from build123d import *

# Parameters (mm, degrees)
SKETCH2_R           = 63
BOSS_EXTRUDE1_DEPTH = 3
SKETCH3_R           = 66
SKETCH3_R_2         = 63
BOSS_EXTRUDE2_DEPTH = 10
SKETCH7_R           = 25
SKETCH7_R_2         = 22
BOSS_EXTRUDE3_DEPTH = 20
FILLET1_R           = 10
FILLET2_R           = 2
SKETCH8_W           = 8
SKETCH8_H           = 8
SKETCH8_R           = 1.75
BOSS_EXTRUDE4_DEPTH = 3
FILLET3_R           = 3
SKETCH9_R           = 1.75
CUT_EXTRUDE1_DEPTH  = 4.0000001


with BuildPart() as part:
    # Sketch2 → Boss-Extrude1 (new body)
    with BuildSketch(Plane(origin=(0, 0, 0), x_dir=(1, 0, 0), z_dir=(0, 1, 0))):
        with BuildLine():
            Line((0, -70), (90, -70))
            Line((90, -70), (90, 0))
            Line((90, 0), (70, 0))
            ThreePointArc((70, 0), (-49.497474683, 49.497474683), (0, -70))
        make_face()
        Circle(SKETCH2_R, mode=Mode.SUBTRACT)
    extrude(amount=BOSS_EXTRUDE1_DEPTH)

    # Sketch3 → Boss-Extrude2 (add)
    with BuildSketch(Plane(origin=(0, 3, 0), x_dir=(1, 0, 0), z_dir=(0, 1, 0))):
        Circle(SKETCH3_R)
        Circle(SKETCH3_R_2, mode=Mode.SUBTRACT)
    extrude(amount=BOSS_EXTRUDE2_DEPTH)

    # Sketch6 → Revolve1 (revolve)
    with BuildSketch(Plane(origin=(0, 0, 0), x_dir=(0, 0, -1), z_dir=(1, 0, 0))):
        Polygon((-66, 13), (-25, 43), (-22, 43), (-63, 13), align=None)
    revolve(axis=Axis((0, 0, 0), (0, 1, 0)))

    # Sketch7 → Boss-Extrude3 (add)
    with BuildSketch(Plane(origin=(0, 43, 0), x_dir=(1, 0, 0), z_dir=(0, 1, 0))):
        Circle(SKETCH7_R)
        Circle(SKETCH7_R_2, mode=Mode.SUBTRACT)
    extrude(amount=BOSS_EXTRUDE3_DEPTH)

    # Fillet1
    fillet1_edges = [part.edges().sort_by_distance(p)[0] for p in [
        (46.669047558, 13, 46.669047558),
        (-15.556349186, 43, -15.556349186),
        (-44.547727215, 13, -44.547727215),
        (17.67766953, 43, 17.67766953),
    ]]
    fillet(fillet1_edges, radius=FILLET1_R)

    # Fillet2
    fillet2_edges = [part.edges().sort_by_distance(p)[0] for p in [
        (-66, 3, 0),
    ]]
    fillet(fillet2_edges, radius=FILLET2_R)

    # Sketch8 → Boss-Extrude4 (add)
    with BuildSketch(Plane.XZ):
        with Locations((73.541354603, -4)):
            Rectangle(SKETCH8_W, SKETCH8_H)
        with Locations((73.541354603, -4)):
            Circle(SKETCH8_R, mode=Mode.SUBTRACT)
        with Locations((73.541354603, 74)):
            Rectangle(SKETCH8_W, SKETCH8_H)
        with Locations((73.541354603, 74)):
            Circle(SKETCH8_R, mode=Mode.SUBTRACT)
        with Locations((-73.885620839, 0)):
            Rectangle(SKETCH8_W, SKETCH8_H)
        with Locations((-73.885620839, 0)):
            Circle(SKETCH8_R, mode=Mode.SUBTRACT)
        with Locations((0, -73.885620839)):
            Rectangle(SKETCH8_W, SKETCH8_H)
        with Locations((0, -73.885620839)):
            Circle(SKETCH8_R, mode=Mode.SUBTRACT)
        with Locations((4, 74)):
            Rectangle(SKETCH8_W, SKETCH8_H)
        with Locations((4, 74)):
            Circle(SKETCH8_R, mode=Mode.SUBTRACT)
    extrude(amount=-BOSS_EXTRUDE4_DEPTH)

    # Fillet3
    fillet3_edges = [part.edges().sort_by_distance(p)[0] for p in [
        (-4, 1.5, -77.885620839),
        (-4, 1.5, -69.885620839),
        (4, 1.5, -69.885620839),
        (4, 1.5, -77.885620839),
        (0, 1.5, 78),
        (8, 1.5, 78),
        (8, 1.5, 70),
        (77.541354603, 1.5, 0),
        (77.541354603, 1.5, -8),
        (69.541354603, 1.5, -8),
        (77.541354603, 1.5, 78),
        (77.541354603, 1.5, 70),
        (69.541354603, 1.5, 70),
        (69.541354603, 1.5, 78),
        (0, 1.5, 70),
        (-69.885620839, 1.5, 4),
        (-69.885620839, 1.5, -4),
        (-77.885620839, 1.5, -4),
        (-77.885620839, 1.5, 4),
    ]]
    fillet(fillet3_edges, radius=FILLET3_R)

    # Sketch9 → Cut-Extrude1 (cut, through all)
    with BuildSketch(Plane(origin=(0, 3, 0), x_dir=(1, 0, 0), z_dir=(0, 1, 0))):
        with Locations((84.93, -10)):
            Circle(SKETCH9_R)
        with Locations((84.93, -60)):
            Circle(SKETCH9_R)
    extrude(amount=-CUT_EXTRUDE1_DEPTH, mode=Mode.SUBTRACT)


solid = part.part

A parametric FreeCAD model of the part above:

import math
import FreeCAD as App
import Part
import Sketcher
from FreeCAD import Vector
Q = App.Units.Quantity


def edges_at(feature, points):
    """Names of the edges that pass closest to the given points."""
    edges = feature.Shape.Edges
    near = lambda p: min(range(len(edges)), key=lambda i: edges[i].distToShape(Part.Vertex(*p))[0])
    return sorted({f"Edge{near(p) + 1}" for p in points})

doc = App.newDocument("Part")
body = doc.addObject("PartDesign::Body", "Body")

# Sketch on XZ plane
sketch1 = body.newObject("Sketcher::SketchObject", "Sketch")
sketch1.AttachmentSupport = (doc.getObject("XZ_Plane"), [""])
sketch1.MapMode = "FlatFace"
sketch1.addGeometry(Part.LineSegment(Vector(0, 70, 0), Vector(90, 70, 0)), False)
sketch1.addGeometry(Part.LineSegment(Vector(90, 70, 0), Vector(90, 0, 0)), False)
sketch1.addGeometry(Part.LineSegment(Vector(90, 0, 0), Vector(70, 0, 0)), False)
sketch1.addGeometry(Part.ArcOfCircle(Part.Circle(Vector(0, 0, 0), Vector(0, 0, 1), 70), math.radians(90), math.radians(360)), False)
sketch1.addGeometry(Part.Circle(Vector(0, 0, 0), Vector(0, 0, 1), 63), False)
sketch1.addConstraint(Sketcher.Constraint("Coincident", 0, 2, 1, 1))
sketch1.addConstraint(Sketcher.Constraint("Coincident", 1, 2, 2, 1))
sketch1.addConstraint(Sketcher.Constraint("Coincident", 2, 2, 3, 2))
sketch1.addConstraint(Sketcher.Constraint("Tangent", 3, 1, 0, 1))
sketch1.addConstraint(Sketcher.Constraint("Horizontal", 0))
sketch1.addConstraint(Sketcher.Constraint("Vertical", 1))
sketch1.addConstraint(Sketcher.Constraint("Horizontal", 2))
sketch1.addConstraint(Sketcher.Constraint("Coincident", 3, 3, -1, 1))
sketch1.addConstraint(Sketcher.Constraint("Coincident", 4, 3, -1, 1))
sketch1.addConstraint(Sketcher.Constraint("PointOnObject", 1, 2, -1))
sketch1.addConstraint(Sketcher.Constraint("Diameter", 4, Q("126 mm")))
sketch1.addConstraint(Sketcher.Constraint("Radius", 3, Q("70 mm")))
sketch1.addConstraint(Sketcher.Constraint("DistanceX", 0, 1, 0, 2, Q("90 mm")))
pad1 = body.newObject("PartDesign::Pad", "Pad")
pad1.Profile = sketch1
pad1.Length = 3
pad1.Reversed = True

# Sketch on XZ plane
sketch2 = body.newObject("Sketcher::SketchObject", "Sketch001")
sketch2.AttachmentSupport = (doc.getObject("XZ_Plane"), [""])
sketch2.MapMode = "FlatFace"
sketch2.AttachmentOffset = App.Placement(Vector(0, 0, -3), App.Rotation())
sketch2.addGeometry(Part.Circle(Vector(0, 0, 0), Vector(0, 0, 1), 66), False)
sketch2.addGeometry(Part.Circle(Vector(0, 0, 0), Vector(0, 0, 1), 63), False)
sketch2.addConstraint(Sketcher.Constraint("Coincident", 0, 3, -1, 1))
sketch2.addConstraint(Sketcher.Constraint("Coincident", 1, 3, -1, 1))
sketch2.addConstraint(Sketcher.Constraint("Diameter", 0, Q("132 mm")))
sketch2.addConstraint(Sketcher.Constraint("Diameter", 1, Q("126 mm")))
pad2 = body.newObject("PartDesign::Pad", "Pad001")
pad2.Profile = sketch2
pad2.Length = 10
pad2.Reversed = True

# Sketch on YZ plane
sketch3 = body.newObject("Sketcher::SketchObject", "Sketch002")
sketch3.AttachmentSupport = (doc.getObject("YZ_Plane"), [""])
sketch3.MapMode = "FlatFace"
sketch3.addGeometry(Part.LineSegment(Vector(43, 25, 0), Vector(13, 66, 0)), False)
sketch3.addGeometry(Part.LineSegment(Vector(13, 66, 0), Vector(13, 63, 0)), False)
sketch3.addGeometry(Part.LineSegment(Vector(13, 63, 0), Vector(43, 22, 0)), False)
sketch3.addGeometry(Part.LineSegment(Vector(43, 22, 0), Vector(43, 25, 0)), False)
sketch3.addConstraint(Sketcher.Constraint("Coincident", 0, 2, 1, 1))
sketch3.addConstraint(Sketcher.Constraint("Coincident", 1, 2, 2, 1))
sketch3.addConstraint(Sketcher.Constraint("Coincident", 2, 2, 3, 1))
sketch3.addConstraint(Sketcher.Constraint("Coincident", 3, 2, 0, 1))
sketch3.addConstraint(Sketcher.Constraint("Vertical", 1))
sketch3.addConstraint(Sketcher.Constraint("Vertical", 3))
sketch3.addConstraint(Sketcher.Constraint("Parallel", 0, 2))
sketch3.addConstraint(Sketcher.Constraint("DistanceY", 1, 2, 1, 1, Q("3 mm")))
sketch3.addConstraint(Sketcher.Constraint("DistanceX", -1, 1, 0, 2, Q("13 mm")))
sketch3.addConstraint(Sketcher.Constraint("DistanceY", -1, 1, 0, 2, Q("66 mm")))
sketch3.addConstraint(Sketcher.Constraint("DistanceX", -1, 1, 2, 2, Q("43 mm")))
sketch3.addConstraint(Sketcher.Constraint("DistanceY", -1, 1, 2, 2, Q("22 mm")))
revolution = body.newObject("PartDesign::Revolution", "Revolution")
revolution.Profile = sketch3
revolution.ReferenceAxis = (sketch3, ["H_Axis"])
revolution.Angle = 360

# Sketch on XZ plane
sketch4 = body.newObject("Sketcher::SketchObject", "Sketch003")
sketch4.AttachmentSupport = (doc.getObject("XZ_Plane"), [""])
sketch4.MapMode = "FlatFace"
sketch4.AttachmentOffset = App.Placement(Vector(0, 0, -43), App.Rotation())
sketch4.addGeometry(Part.Circle(Vector(0, 0, 0), Vector(0, 0, 1), 25), False)
sketch4.addGeometry(Part.Circle(Vector(0, 0, 0), Vector(0, 0, 1), 22), False)
sketch4.addConstraint(Sketcher.Constraint("Coincident", 0, 3, -1, 1))
sketch4.addConstraint(Sketcher.Constraint("Coincident", 1, 3, -1, 1))
sketch4.addConstraint(Sketcher.Constraint("Diameter", 0, Q("50 mm")))
sketch4.addConstraint(Sketcher.Constraint("Diameter", 1, Q("44 mm")))
pad3 = body.newObject("PartDesign::Pad", "Pad002")
pad3.Profile = sketch4
pad3.Length = 20
pad3.Reversed = True
doc.recompute()

fillet = body.newObject("PartDesign::Fillet", "Fillet")
fillet.Base = (pad3, edges_at(pad3, [
    (46.669, 13, 46.669),
    (-15.556, 43, -15.556),
    (-44.548, 13, -44.548),
    (17.678, 43, 17.678),
]))
fillet.Radius = 10
doc.recompute()

fillet2 = body.newObject("PartDesign::Fillet", "Fillet001")
fillet2.Base = (fillet, edges_at(fillet, [(-66, 3, 0)]))
fillet2.Radius = 2

# Sketch on XZ plane
sketch5 = body.newObject("Sketcher::SketchObject", "Sketch004")
sketch5.AttachmentSupport = (doc.getObject("XZ_Plane"), [""])
sketch5.MapMode = "FlatFace"
sketch5.addGeometry(Part.LineSegment(Vector(69.5, 0, 0), Vector(69.5, -8, 0)), False)
sketch5.addGeometry(Part.LineSegment(Vector(69.5, -8, 0), Vector(77.5, -8, 0)), False)
sketch5.addGeometry(Part.LineSegment(Vector(77.5, -8, 0), Vector(77.5, 0, 0)), False)
sketch5.addGeometry(Part.LineSegment(Vector(77.5, 0, 0), Vector(69.5, 0, 0)), False)
sketch5.addGeometry(Part.Circle(Vector(73.5, -4, 0), Vector(0, 0, 1), 1.8), False)
sketch5.addGeometry(Part.LineSegment(Vector(69.5, 78, 0), Vector(69.5, 70, 0)), False)
sketch5.addGeometry(Part.LineSegment(Vector(69.5, 70, 0), Vector(77.5, 70, 0)), False)
sketch5.addGeometry(Part.LineSegment(Vector(77.5, 70, 0), Vector(77.5, 78, 0)), False)
sketch5.addGeometry(Part.LineSegment(Vector(77.5, 78, 0), Vector(69.5, 78, 0)), False)
sketch5.addGeometry(Part.Circle(Vector(73.5, 74, 0), Vector(0, 0, 1), 1.8), False)
sketch5.addGeometry(Part.LineSegment(Vector(-77.9, 4, 0), Vector(-77.9, -4, 0)), False)
sketch5.addGeometry(Part.LineSegment(Vector(-77.9, -4, 0), Vector(-69.9, -4, 0)), False)
sketch5.addGeometry(Part.LineSegment(Vector(-69.9, -4, 0), Vector(-69.9, 4, 0)), False)
sketch5.addGeometry(Part.LineSegment(Vector(-69.9, 4, 0), Vector(-77.9, 4, 0)), False)
sketch5.addGeometry(Part.Circle(Vector(-73.9, 0, 0), Vector(0, 0, 1), 1.8), False)
sketch5.addGeometry(Part.LineSegment(Vector(-4, -69.9, 0), Vector(-4, -77.9, 0)), False)
sketch5.addGeometry(Part.LineSegment(Vector(-4, -77.9, 0), Vector(4, -77.9, 0)), False)
sketch5.addGeometry(Part.LineSegment(Vector(4, -77.9, 0), Vector(4, -69.9, 0)), False)
sketch5.addGeometry(Part.LineSegment(Vector(4, -69.9, 0), Vector(-4, -69.9, 0)), False)
sketch5.addGeometry(Part.Circle(Vector(0, -73.9, 0), Vector(0, 0, 1), 1.8), False)
sketch5.addGeometry(Part.LineSegment(Vector(0, 78, 0), Vector(0, 70, 0)), False)
sketch5.addGeometry(Part.LineSegment(Vector(0, 70, 0), Vector(8, 70, 0)), False)
sketch5.addGeometry(Part.LineSegment(Vector(8, 70, 0), Vector(8, 78, 0)), False)
sketch5.addGeometry(Part.LineSegment(Vector(8, 78, 0), Vector(0, 78, 0)), False)
sketch5.addGeometry(Part.Circle(Vector(4, 74, 0), Vector(0, 0, 1), 1.8), False)
sketch5.addConstraint(Sketcher.Constraint("Coincident", 0, 2, 1, 1))
sketch5.addConstraint(Sketcher.Constraint("Coincident", 1, 2, 2, 1))
sketch5.addConstraint(Sketcher.Constraint("Coincident", 2, 2, 3, 1))
sketch5.addConstraint(Sketcher.Constraint("Coincident", 3, 2, 0, 1))
sketch5.addConstraint(Sketcher.Constraint("Coincident", 5, 2, 6, 1))
sketch5.addConstraint(Sketcher.Constraint("Coincident", 6, 2, 7, 1))
sketch5.addConstraint(Sketcher.Constraint("Coincident", 7, 2, 8, 1))
sketch5.addConstraint(Sketcher.Constraint("Coincident", 8, 2, 5, 1))
sketch5.addConstraint(Sketcher.Constraint("Coincident", 10, 2, 11, 1))
sketch5.addConstraint(Sketcher.Constraint("Coincident", 11, 2, 12, 1))
sketch5.addConstraint(Sketcher.Constraint("Coincident", 12, 2, 13, 1))
sketch5.addConstraint(Sketcher.Constraint("Coincident", 13, 2, 10, 1))
sketch5.addConstraint(Sketcher.Constraint("Coincident", 15, 2, 16, 1))
sketch5.addConstraint(Sketcher.Constraint("Coincident", 16, 2, 17, 1))
sketch5.addConstraint(Sketcher.Constraint("Coincident", 17, 2, 18, 1))
sketch5.addConstraint(Sketcher.Constraint("Coincident", 18, 2, 15, 1))
sketch5.addConstraint(Sketcher.Constraint("Coincident", 20, 2, 21, 1))
sketch5.addConstraint(Sketcher.Constraint("Coincident", 21, 2, 22, 1))
sketch5.addConstraint(Sketcher.Constraint("Coincident", 22, 2, 23, 1))
sketch5.addConstraint(Sketcher.Constraint("Coincident", 23, 2, 20, 1))
sketch5.addConstraint(Sketcher.Constraint("Vertical", 0))
sketch5.addConstraint(Sketcher.Constraint("Horizontal", 1))
sketch5.addConstraint(Sketcher.Constraint("Vertical", 2))
sketch5.addConstraint(Sketcher.Constraint("Horizontal", 3))
sketch5.addConstraint(Sketcher.Constraint("Vertical", 5))
sketch5.addConstraint(Sketcher.Constraint("Horizontal", 6))
sketch5.addConstraint(Sketcher.Constraint("Vertical", 7))
sketch5.addConstraint(Sketcher.Constraint("Horizontal", 8))
sketch5.addConstraint(Sketcher.Constraint("Vertical", 10))
sketch5.addConstraint(Sketcher.Constraint("Horizontal", 11))
sketch5.addConstraint(Sketcher.Constraint("Vertical", 12))
sketch5.addConstraint(Sketcher.Constraint("Horizontal", 13))
sketch5.addConstraint(Sketcher.Constraint("Vertical", 15))
sketch5.addConstraint(Sketcher.Constraint("Horizontal", 16))
sketch5.addConstraint(Sketcher.Constraint("Vertical", 17))
sketch5.addConstraint(Sketcher.Constraint("Horizontal", 18))
sketch5.addConstraint(Sketcher.Constraint("Vertical", 20))
sketch5.addConstraint(Sketcher.Constraint("Horizontal", 21))
sketch5.addConstraint(Sketcher.Constraint("Vertical", 22))
sketch5.addConstraint(Sketcher.Constraint("Horizontal", 23))
sketch5.addConstraint(Sketcher.Constraint("Equal", 4, 9))
sketch5.addConstraint(Sketcher.Constraint("Equal", 9, 14))
sketch5.addConstraint(Sketcher.Constraint("Equal", 14, 19))
sketch5.addConstraint(Sketcher.Constraint("Equal", 19, 24))
sketch5.addConstraint(Sketcher.Constraint("PointOnObject", 14, 3, -1))
sketch5.addConstraint(Sketcher.Constraint("PointOnObject", 19, 3, -2))
sketch5.addConstraint(Sketcher.Constraint("PointOnObject", 2, 2, -1))
sketch5.addConstraint(Sketcher.Constraint("PointOnObject", 20, 2, -2))
sketch5.addConstraint(Sketcher.Constraint("Horizontal", 9, 3, 24, 3))
sketch5.addConstraint(Sketcher.Constraint("Horizontal", 4, 3, 10, 2))
sketch5.addConstraint(Sketcher.Constraint("Horizontal", 6, 2, 20, 2))
sketch5.addConstraint(Sketcher.Constraint("Horizontal", 8, 2, 22, 2))
sketch5.addConstraint(Sketcher.Constraint("Vertical", 4, 3, 9, 3))
sketch5.addConstraint(Sketcher.Constraint("Vertical", 3, 2, 5, 2))
sketch5.addConstraint(Sketcher.Constraint("Vertical", 2, 2, 6, 2))
sketch5.addConstraint(Sketcher.Constraint("Vertical", 24, 3, 16, 2))
sketch5.addConstraint(Sketcher.Constraint("Equal", 8, 11))
sketch5.addConstraint(Sketcher.Constraint("Equal", 13, 16))
sketch5.addConstraint(Sketcher.Constraint("Equal", 18, 21))
sketch5.addConstraint(Sketcher.Constraint("Equal", 23, 0))
sketch5.addConstraint(Sketcher.Constraint("Equal", 2, 5))
sketch5.addConstraint(Sketcher.Constraint("Equal", 7, 10))
sketch5.addConstraint(Sketcher.Constraint("Equal", 12, 15))
sketch5.addConstraint(Sketcher.Constraint("Diameter", 4, Q("3.5 mm")))
sketch5.addConstraint(Sketcher.Constraint("DistanceX", 1, 1, 1, 2, Q("8 mm")))
sketch5.addConstraint(Sketcher.Constraint("DistanceY", 4, 3, -1, 1, Q("4 mm")))
sketch5.addConstraint(Sketcher.Constraint("DistanceY", -1, 1, 9, 3, Q("74 mm")))
sketch5.addConstraint(Sketcher.Constraint("DistanceX", -1, 1, 24, 3, Q("4 mm")))
sketch5.addConstraint(Sketcher.Constraint("DistanceY", -1, 1, 5, 2, Q("70 mm")))
sketch5.addConstraint(Sketcher.Constraint("DistanceX", 0, 2, 4, 3, Q("4 mm")))
sketch5.addConstraint(Sketcher.Constraint("DistanceX", 10, 2, 14, 3, Q("4 mm")))
sketch5.addConstraint(Sketcher.Constraint("DistanceY", 15, 2, 19, 3, Q("4 mm")))
sketch5.addConstraint(Sketcher.Constraint("DistanceX", 14, 3, -1, 1, Q("73.885621 mm")))
sketch5.addConstraint(Sketcher.Constraint("DistanceY", 19, 3, -1, 1, Q("73.885621 mm")))
sketch5.addConstraint(Sketcher.Constraint("DistanceX", -1, 1, 4, 3, Q("73.541355 mm")))
pad4 = body.newObject("PartDesign::Pad", "Pad003")
pad4.Profile = sketch5
pad4.Length = 3
pad4.Reversed = True
doc.recompute()

fillet3 = body.newObject("PartDesign::Fillet", "Fillet002")
fillet3.Base = (pad4, edges_at(pad4, [
    (-4, 1.5, -77.886),
    (-4, 1.5, -69.886),
    (4, 1.5, -69.886),
    (4, 1.5, -77.886),
    (0, 1.5, 78),
    (8, 1.5, 78),
    (8, 1.5, 70),
    (77.541, 1.5, 0),
    (77.541, 1.5, -8),
    (69.541, 1.5, -8),
    (77.541, 1.5, 78),
    (77.541, 1.5, 70),
    (69.541, 1.5, 70),
    (69.541, 1.5, 78),
    (0, 1.5, 70),
    (-69.886, 1.5, 4),
    (-69.886, 1.5, -4),
    (-77.886, 1.5, -4),
    (-77.886, 1.5, 4),
]))
fillet3.Radius = 3

# Sketch on XZ plane
sketch6 = body.newObject("Sketcher::SketchObject", "Sketch005")
sketch6.AttachmentSupport = (doc.getObject("XZ_Plane"), [""])
sketch6.MapMode = "FlatFace"
sketch6.AttachmentOffset = App.Placement(Vector(0, 0, -3), App.Rotation())
sketch6.addGeometry(Part.Circle(Vector(84.9, 10, 0), Vector(0, 0, 1), 1.8), False)
sketch6.addGeometry(Part.Circle(Vector(84.9, 60, 0), Vector(0, 0, 1), 1.8), False)
sketch6.addConstraint(Sketcher.Constraint("Equal", 0, 1))
sketch6.addConstraint(Sketcher.Constraint("Vertical", 0, 3, 1, 3))
sketch6.addConstraint(Sketcher.Constraint("Diameter", 0, Q("3.5 mm")))
sketch6.addConstraint(Sketcher.Constraint("DistanceY", -1, 1, 0, 3, Q("10 mm")))
sketch6.addConstraint(Sketcher.Constraint("DistanceY", -1, 1, 1, 3, Q("60 mm")))
sketch6.addConstraint(Sketcher.Constraint("DistanceX", -1, 1, 0, 3, Q("84.93 mm")))
pocket1 = body.newObject("PartDesign::Pocket", "Pocket")
pocket1.Profile = sketch6
pocket1.Type = "ThroughAll"
pocket1.Reversed = True

doc.recompute()
